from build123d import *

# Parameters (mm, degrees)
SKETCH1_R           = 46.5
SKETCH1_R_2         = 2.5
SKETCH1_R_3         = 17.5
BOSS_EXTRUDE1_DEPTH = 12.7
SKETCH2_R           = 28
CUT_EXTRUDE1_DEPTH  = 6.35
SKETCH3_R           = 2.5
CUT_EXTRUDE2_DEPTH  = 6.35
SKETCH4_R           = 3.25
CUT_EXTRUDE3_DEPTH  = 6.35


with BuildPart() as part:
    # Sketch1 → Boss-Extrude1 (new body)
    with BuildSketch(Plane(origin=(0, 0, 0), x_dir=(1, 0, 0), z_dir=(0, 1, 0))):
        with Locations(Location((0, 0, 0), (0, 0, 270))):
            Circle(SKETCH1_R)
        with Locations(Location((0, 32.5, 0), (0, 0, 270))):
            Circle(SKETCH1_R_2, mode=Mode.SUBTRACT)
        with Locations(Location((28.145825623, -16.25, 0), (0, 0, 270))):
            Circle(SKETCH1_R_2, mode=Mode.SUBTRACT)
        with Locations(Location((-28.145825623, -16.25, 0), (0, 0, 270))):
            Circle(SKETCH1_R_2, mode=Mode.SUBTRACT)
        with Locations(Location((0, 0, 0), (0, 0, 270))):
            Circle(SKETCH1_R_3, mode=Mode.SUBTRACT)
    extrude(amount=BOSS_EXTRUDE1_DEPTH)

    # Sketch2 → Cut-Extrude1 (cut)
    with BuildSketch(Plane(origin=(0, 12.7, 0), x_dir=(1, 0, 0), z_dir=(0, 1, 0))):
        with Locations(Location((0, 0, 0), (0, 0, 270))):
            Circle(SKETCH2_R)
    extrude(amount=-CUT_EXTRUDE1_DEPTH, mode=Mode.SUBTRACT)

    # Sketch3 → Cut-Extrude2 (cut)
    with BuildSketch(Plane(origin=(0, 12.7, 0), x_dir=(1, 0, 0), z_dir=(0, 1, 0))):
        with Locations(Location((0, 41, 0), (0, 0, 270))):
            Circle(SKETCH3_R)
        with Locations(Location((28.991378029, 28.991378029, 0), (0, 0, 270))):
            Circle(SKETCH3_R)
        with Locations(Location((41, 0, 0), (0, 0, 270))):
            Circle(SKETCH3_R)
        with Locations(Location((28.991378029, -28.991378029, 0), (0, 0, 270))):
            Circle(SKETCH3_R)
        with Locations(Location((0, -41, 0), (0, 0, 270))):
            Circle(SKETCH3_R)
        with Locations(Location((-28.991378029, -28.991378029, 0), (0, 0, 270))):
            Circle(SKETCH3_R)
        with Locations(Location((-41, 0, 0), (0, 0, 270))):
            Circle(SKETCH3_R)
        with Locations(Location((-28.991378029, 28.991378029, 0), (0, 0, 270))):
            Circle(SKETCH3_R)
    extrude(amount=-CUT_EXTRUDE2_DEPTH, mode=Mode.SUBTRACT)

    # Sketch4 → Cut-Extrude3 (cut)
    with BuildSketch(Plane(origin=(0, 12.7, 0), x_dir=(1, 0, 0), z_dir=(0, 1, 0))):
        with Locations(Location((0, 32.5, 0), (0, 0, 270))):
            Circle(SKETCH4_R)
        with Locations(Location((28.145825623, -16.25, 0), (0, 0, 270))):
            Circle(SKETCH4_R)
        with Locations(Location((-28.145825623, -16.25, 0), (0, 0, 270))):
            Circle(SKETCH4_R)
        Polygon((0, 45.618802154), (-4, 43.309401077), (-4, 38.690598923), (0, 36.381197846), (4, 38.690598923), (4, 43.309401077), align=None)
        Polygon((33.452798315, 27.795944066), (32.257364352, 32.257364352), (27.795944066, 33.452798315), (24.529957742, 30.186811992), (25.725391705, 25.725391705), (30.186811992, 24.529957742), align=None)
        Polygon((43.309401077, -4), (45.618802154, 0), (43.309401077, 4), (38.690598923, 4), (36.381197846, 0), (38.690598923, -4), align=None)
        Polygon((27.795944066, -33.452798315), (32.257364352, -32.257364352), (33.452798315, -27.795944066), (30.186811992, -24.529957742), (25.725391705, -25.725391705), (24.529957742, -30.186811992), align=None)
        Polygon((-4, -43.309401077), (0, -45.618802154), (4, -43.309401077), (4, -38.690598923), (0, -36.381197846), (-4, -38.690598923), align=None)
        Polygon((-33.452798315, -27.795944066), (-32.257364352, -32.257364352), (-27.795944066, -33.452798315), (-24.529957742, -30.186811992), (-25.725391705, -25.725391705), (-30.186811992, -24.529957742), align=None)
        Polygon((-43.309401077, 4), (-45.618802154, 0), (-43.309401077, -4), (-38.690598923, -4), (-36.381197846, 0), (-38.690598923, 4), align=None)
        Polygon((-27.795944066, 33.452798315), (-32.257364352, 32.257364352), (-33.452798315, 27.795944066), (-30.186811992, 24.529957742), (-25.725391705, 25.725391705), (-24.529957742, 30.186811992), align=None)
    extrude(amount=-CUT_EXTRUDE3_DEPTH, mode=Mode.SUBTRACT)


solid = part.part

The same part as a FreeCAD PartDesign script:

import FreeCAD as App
import Part
import Sketcher
from FreeCAD import Vector
Q = App.Units.Quantity


def add_polygon(sketch, points):
    """Adds a closed chain of lines whose ends are joined by coincident constraints."""
    first, n = sketch.GeometryCount, len(points)
    for a, b in zip(points, points[1:] + points[:1]):
        sketch.addGeometry(Part.LineSegment(App.Vector(*a, 0), App.Vector(*b, 0)), False)
    for i in range(n):
        sketch.addConstraint(Sketcher.Constraint("Coincident", first + i, 2, first + (i + 1) % n, 1))

doc = App.newDocument("Part")
params = doc.addObject("Spreadsheet::Sheet", "Params")
for row, (alias, value) in enumerate([
    ("sketch1_diameter", "93 mm"),
    ("sketch1_diameter2", "5 mm"),
    ("sketch1_diameter3", "35 mm"),
    ("pad1_length", "12.7 mm"),
    ("sketch2_diameter", "56 mm"),
    ("pocket1_length", "6.35 mm"),
    ("sketch3_diameter", "5 mm"),
    ("pocket2_length", "6.35 mm"),
    ("sketch4_diameter", "6.5 mm"),
    ("pocket3_length", "6.35 mm"),
], start=1):
    params.set(f"A{row}", alias)
    params.set(f"B{row}", "=" + value)
    params.setAlias(f"B{row}", alias)

body = doc.addObject("PartDesign::Body", "Body")

sketch1 = doc.addObject("Sketcher::SketchObject", "Sketch")
body.addObject(sketch1)
sketch1.AttachmentSupport = (doc.XZ_Plane, [""])
sketch1.MapMode = "FlatFace"
sketch1.addGeometry([
    Part.Circle(Vector(0, 0, 0), Vector(0, 0, 1), 46.5),
    Part.Circle(Vector(0, -32.5, 0), Vector(0, 0, 1), 2.5),
    Part.Circle(Vector(-28.1, 16.2, 0), Vector(0, 0, 1), 2.5),
    Part.Circle(Vector(0, 0, 0), Vector(0, 0, 1), 17.5),
    Part.Circle(Vector(28.1, 16.2, 0), Vector(0, 0, 1), 2.5),
], False)
sketch1.addConstraint([
    Sketcher.Constraint("Coincident", 0, 3, -1, 1),
    Sketcher.Constraint("Coincident", 3, 3, -1, 1),
    Sketcher.Constraint("Equal", 1, 2),
    Sketcher.Constraint("Equal", 2, 4),
    Sketcher.Constraint("Symmetric", 2, 3, 4, 3, -2),
    Sketcher.Constraint("PointOnObject", 1, 3, -2),
    Sketcher.Constraint("Diameter", 0, 93.0),
    Sketcher.Constraint("Diameter", 1, 5.0),
    Sketcher.Constraint("Diameter", 3, 35.0),
    Sketcher.Constraint("DistanceY", 1, 3, -1, 1, 32.5),
    Sketcher.Constraint("DistanceY", -1, 1, 2, 3, 16.25),
    Sketcher.Constraint("DistanceX", 2, 3, 4, 3, 56.291651),
])
sketch1.setExpression("Constraints[6]", "Params.sketch1_diameter")
sketch1.setExpression("Constraints[7]", "Params.sketch1_diameter2")
sketch1.setExpression("Constraints[8]", "Params.sketch1_diameter3")
pad1 = doc.addObject("PartDesign::Pad", "Pad")
body.addObject(pad1)
pad1.Profile = sketch1
pad1.setExpression("Length", "Params.pad1_length")
pad1.Reversed = True

sketch2 = doc.addObject("Sketcher::SketchObject", "Sketch001")
body.addObject(sketch2)
sketch2.AttachmentSupport = (doc.XZ_Plane, [""])
sketch2.MapMode = "FlatFace"
sketch2.AttachmentOffset = App.Placement(Vector(0, 0, -12.7), App.Rotation())
sketch2.addGeometry(Part.Circle(Vector(0, 0, 0), Vector(0, 0, 1), 28), False)
sketch2.addConstraint([
    Sketcher.Constraint("Coincident", 0, 3, -1, 1),
    Sketcher.Constraint("Diameter", 0, 56.0),
])
sketch2.setExpression("Constraints[1]", "Params.sketch2_diameter")
pocket1 = doc.addObject("PartDesign::Pocket", "Pocket")
body.addObject(pocket1)
pocket1.Profile = sketch2
pocket1.setExpression("Length", "Params.pocket1_length")
pocket1.Reversed = True

sketch3 = doc.addObject("Sketcher::SketchObject", "Sketch002")
body.addObject(sketch3)
sketch3.AttachmentSupport = (doc.XZ_Plane, [""])
sketch3.MapMode = "FlatFace"
sketch3.AttachmentOffset = App.Placement(Vector(0, 0, -12.7), App.Rotation())
sketch3.addGeometry([
    Part.Circle(Vector(0, -41, 0), Vector(0, 0, 1), 2.5),
    Part.Circle(Vector(29, -29, 0), Vector(0, 0, 1), 2.5),
    Part.Circle(Vector(41, 0, 0), Vector(0, 0, 1), 2.5),
    Part.Circle(Vector(29, 29, 0), Vector(0, 0, 1), 2.5),
    Part.Circle(Vector(0, 41, 0), Vector(0, 0, 1), 2.5),
    Part.Circle(Vector(-29, 29, 0), Vector(0, 0, 1), 2.5),
    Part.Circle(Vector(-41, 0, 0), Vector(0, 0, 1), 2.5),
    Part.Circle(Vector(-29, -29, 0), Vector(0, 0, 1), 2.5),
], False)
sketch3.addConstraint([
    Sketcher.Constraint("Equal", 0, 1),
    Sketcher.Constraint("Equal", 1, 2),
    Sketcher.Constraint("Equal", 2, 3),
    Sketcher.Constraint("Equal", 3, 4),
    Sketcher.Constraint("Equal", 4, 5),
    Sketcher.Constraint("Equal", 5, 6),
    Sketcher.Constraint("Equal", 6, 7),
    Sketcher.Constraint("Symmetric", 0, 3, 4, 3, -1, 1),
    Sketcher.Constraint("Symmetric", 1, 3, 5, 3, -1, 1),
    Sketcher.Constraint("Symmetric", 2, 3, 6, 3, -1, 1),
    Sketcher.Constraint("Symmetric", 3, 3, 7, 3, -1, 1),
    Sketcher.Constraint("Symmetric", 3, 3, 5, 3, -2),
    Sketcher.Constraint("PointOnObject", 0, 3, -2),
    Sketcher.Constraint("PointOnObject", 2, 3, -1),
    Sketcher.Constraint("Diameter", 0, 5.0),
    Sketcher.Constraint("DistanceY", 0, 3, -1, 1, 41.0),
    Sketcher.Constraint("DistanceX", -1, 1, 2, 3, 41.0),
    Sketcher.Constraint("DistanceX", -1, 1, 1, 3, 28.991378),
    Sketcher.Constraint("DistanceY", 1, 3, -1, 1, 28.991378),
])
sketch3.setExpression("Constraints[14]", "Params.sketch3_diameter")
pocket2 = doc.addObject("PartDesign::Pocket", "Pocket001")
body.addObject(pocket2)
pocket2.Profile = sketch3
pocket2.setExpression("Length", "Params.pocket2_length")
pocket2.Reversed = True

sketch4 = doc.addObject("Sketcher::SketchObject", "Sketch003")
body.addObject(sketch4)
sketch4.AttachmentSupport = (doc.XZ_Plane, [""])
sketch4.MapMode = "FlatFace"
sketch4.AttachmentOffset = App.Placement(Vector(0, 0, -12.7), App.Rotation())
sketch4.addGeometry(Part.Circle(Vector(0, -32.5, 0), Vector(0, 0, 1), 3.2), False)
sketch4.addGeometry(Part.Circle(Vector(28.1, 16.2, 0), Vector(0, 0, 1), 3.2), False)
sketch4.addGeometry(Part.Circle(Vector(-28.1, 16.2, 0), Vector(0, 0, 1), 3.2), False)
add_polygon(sketch4, [(0, -45.6), (-4, -43.3), (-4, -38.7), (0, -36.4), (4, -38.7), (4, -43.3)])
add_polygon(sketch4, [(33.5, -27.8), (32.3, -32.3), (27.8, -33.5), (24.5, -30.2), (25.7, -25.7), (30.2, -24.5)])
add_polygon(sketch4, [(43.3, 4), (45.6, 0), (43.3, -4), (38.7, -4), (36.4, 0), (38.7, 4)])
add_polygon(sketch4, [(27.8, 33.5), (32.3, 32.3), (33.5, 27.8), (30.2, 24.5), (25.7, 25.7), (24.5, 30.2)])
add_polygon(sketch4, [(-4, 43.3), (0, 45.6), (4, 43.3), (4, 38.7), (0, 36.4), (-4, 38.7)])
add_polygon(sketch4, [(-33.5, 27.8), (-32.3, 32.3), (-27.8, 33.5), (-24.5, 30.2), (-25.7, 25.7), (-30.2, 24.5)])
add_polygon(sketch4, [(-43.3, -4), (-45.6, 0), (-43.3, 4), (-38.7, 4), (-36.4, 0), (-38.7, -4)])
add_polygon(sketch4, [(-27.8, -33.5), (-32.3, -32.3), (-33.5, -27.8), (-30.2, -24.5), (-25.7, -25.7), (-24.5, -30.2)])
sketch4.addConstraint([
    Sketcher.Constraint("Vertical", 4),
    Sketcher.Constraint("Vertical", 7),
    Sketcher.Constraint("Horizontal", 17),
    Sketcher.Constraint("Horizontal", 20),
    Sketcher.Constraint("Vertical", 29),
    Sketcher.Constraint("Vertical", 32),
    Sketcher.Constraint("Horizontal", 41),
    Sketcher.Constraint("Horizontal", 44),
    Sketcher.Constraint("Equal", 0, 1),
    Sketcher.Constraint("Equal", 1, 2),
    Sketcher.Constraint("Symmetric", 8, 2, 27, 2, -1, 1),
    Sketcher.Constraint("Symmetric", 3, 2, 28, 2, -1, 1),
    Sketcher.Constraint("Symmetric", 5, 2, 30, 2, -1, 1),
    Sketcher.Constraint("Symmetric", 6, 2, 31, 2, -1, 1),
    Sketcher.Constraint("Symmetric", 9, 2, 33, 2, -1, 1),
    Sketcher.Constraint("Symmetric", 10, 2, 34, 2, -1, 1),
    Sketcher.Constraint("Symmetric", 11, 2, 35, 2, -1, 1),
    Sketcher.Constraint("Symmetric", 12, 2, 36, 2, -1, 1),
    Sketcher.Constraint("Symmetric", 13, 2, 37, 2, -1, 1),
    Sketcher.Constraint("Symmetric", 14, 2, 38, 2, -1, 1),
    Sketcher.Constraint("Symmetric", 15, 2, 39, 2, -1, 1),
    Sketcher.Constraint("Symmetric", 16, 2, 40, 2, -1, 1),
    Sketcher.Constraint("Symmetric", 18, 2, 42, 2, -1, 1),
    Sketcher.Constraint("Symmetric", 19, 2, 43, 2, -1, 1),
    Sketcher.Constraint("Symmetric", 21, 2, 45, 2, -1, 1),
    Sketcher.Constraint("Symmetric", 22, 2, 46, 2, -1, 1),
    Sketcher.Constraint("Symmetric", 23, 2, 47, 2, -1, 1),
    Sketcher.Constraint("Symmetric", 24, 2, 48, 2, -1, 1),
    Sketcher.Constraint("Symmetric", 25, 2, 49, 2, -1, 1),
    Sketcher.Constraint("Symmetric", 26, 2, 50, 2, -1, 1),
    Sketcher.Constraint("Symmetric", 1, 3, 2, 3, -2),
    Sketcher.Constraint("Symmetric", 4, 2, 6, 2, -2),
    Sketcher.Constraint("Symmetric", 21, 2, 33, 2, -2),
    Sketcher.Constraint("Symmetric", 26, 2, 34, 2, -2),
    Sketcher.Constraint("Symmetric", 25, 2, 35, 2, -2),
    Sketcher.Constraint("Symmetric", 24, 2, 36, 2, -2),
    Sketcher.Constraint("Symmetric", 23, 2, 37, 2, -2),
    Sketcher.Constraint("Symmetric", 22, 2, 38, 2, -2),
    Sketcher.Constraint("Symmetric", 20, 2, 40, 2, -2),
    Sketcher.Constraint("PointOnObject", 0, 3, -2),
    Sketcher.Constraint("PointOnObject", 5, 2, -2),
    Sketcher.Constraint("PointOnObject", 8, 2, -2),
    Sketcher.Constraint("PointOnObject", 15, 2, -1),
    Sketcher.Constraint("PointOnObject", 18, 2, -1),
    Sketcher.Constraint("Parallel", 3, 6),
    Sketcher.Constraint("Parallel", 5, 8),
    Sketcher.Constraint("Parallel", 9, 12),
    Sketcher.Constraint("Parallel", 10, 13),
    Sketcher.Constraint("Parallel", 11, 14),
    Sketcher.Constraint("Perpendicular", 8, 15),
    Sketcher.Constraint("Parallel", 15, 18),
    Sketcher.Constraint("Parallel", 16, 19),
    Sketcher.Constraint("Perpendicular", 12, 21),
    Sketcher.Constraint("Perpendicular", 14, 23),
    Sketcher.Constraint("Perpendicular", 18, 27),
    Sketcher.Constraint("Parallel", 27, 30),
    Sketcher.Constraint("Perpendicular", 30, 39),
    Sketcher.Constraint("Parallel", 39, 42),
    Sketcher.Constraint("Equal", 44, 4),
    Sketcher.Constraint("Equal", 8, 9),
    Sketcher.Constraint("Equal", 9, 10),
    Sketcher.Constraint("Equal", 10, 11),
    Sketcher.Constraint("Equal", 11, 12),
    Sketcher.Constraint("Equal", 14, 15),
    Sketcher.Constraint("Diameter", 0, 6.5),
    Sketcher.Constraint("Angle", 3, Q("150 deg")),
    Sketcher.Constraint("Angle", 9, Q("-105 deg")),
    Sketcher.Constraint("DistanceX", 3, 2, -1, 1, 4.0),
    Sketcher.Constraint("DistanceY", 0, 3, -1, 1, 32.5),
    Sketcher.Constraint("DistanceY", -1, 1, 1, 3, 16.25),
    Sketcher.Constraint("DistanceY", 3, 2, -1, 1, 43.309401),
    Sketcher.Constraint("DistanceY", 4, 2, -1, 1, 38.690599),
    Sketcher.Constraint("DistanceY", 10, 2, -1, 1, 33.452798),
    Sketcher.Constraint("DistanceX", -1, 1, 14, 2, 33.452798),
    Sketcher.Constraint("DistanceX", -1, 1, 16, 2, 43.309401),
    Sketcher.Constraint("DistanceX", 2, 3, 1, 3, 56.291651),
])
sketch4.setExpression("Constraints[112]", "Params.sketch4_diameter")
pocket3 = doc.addObject("PartDesign::Pocket", "Pocket002")
body.addObject(pocket3)
pocket3.Profile = sketch4
pocket3.setExpression("Length", "Params.pocket3_length")
pocket3.Reversed = True

doc.recompute()
